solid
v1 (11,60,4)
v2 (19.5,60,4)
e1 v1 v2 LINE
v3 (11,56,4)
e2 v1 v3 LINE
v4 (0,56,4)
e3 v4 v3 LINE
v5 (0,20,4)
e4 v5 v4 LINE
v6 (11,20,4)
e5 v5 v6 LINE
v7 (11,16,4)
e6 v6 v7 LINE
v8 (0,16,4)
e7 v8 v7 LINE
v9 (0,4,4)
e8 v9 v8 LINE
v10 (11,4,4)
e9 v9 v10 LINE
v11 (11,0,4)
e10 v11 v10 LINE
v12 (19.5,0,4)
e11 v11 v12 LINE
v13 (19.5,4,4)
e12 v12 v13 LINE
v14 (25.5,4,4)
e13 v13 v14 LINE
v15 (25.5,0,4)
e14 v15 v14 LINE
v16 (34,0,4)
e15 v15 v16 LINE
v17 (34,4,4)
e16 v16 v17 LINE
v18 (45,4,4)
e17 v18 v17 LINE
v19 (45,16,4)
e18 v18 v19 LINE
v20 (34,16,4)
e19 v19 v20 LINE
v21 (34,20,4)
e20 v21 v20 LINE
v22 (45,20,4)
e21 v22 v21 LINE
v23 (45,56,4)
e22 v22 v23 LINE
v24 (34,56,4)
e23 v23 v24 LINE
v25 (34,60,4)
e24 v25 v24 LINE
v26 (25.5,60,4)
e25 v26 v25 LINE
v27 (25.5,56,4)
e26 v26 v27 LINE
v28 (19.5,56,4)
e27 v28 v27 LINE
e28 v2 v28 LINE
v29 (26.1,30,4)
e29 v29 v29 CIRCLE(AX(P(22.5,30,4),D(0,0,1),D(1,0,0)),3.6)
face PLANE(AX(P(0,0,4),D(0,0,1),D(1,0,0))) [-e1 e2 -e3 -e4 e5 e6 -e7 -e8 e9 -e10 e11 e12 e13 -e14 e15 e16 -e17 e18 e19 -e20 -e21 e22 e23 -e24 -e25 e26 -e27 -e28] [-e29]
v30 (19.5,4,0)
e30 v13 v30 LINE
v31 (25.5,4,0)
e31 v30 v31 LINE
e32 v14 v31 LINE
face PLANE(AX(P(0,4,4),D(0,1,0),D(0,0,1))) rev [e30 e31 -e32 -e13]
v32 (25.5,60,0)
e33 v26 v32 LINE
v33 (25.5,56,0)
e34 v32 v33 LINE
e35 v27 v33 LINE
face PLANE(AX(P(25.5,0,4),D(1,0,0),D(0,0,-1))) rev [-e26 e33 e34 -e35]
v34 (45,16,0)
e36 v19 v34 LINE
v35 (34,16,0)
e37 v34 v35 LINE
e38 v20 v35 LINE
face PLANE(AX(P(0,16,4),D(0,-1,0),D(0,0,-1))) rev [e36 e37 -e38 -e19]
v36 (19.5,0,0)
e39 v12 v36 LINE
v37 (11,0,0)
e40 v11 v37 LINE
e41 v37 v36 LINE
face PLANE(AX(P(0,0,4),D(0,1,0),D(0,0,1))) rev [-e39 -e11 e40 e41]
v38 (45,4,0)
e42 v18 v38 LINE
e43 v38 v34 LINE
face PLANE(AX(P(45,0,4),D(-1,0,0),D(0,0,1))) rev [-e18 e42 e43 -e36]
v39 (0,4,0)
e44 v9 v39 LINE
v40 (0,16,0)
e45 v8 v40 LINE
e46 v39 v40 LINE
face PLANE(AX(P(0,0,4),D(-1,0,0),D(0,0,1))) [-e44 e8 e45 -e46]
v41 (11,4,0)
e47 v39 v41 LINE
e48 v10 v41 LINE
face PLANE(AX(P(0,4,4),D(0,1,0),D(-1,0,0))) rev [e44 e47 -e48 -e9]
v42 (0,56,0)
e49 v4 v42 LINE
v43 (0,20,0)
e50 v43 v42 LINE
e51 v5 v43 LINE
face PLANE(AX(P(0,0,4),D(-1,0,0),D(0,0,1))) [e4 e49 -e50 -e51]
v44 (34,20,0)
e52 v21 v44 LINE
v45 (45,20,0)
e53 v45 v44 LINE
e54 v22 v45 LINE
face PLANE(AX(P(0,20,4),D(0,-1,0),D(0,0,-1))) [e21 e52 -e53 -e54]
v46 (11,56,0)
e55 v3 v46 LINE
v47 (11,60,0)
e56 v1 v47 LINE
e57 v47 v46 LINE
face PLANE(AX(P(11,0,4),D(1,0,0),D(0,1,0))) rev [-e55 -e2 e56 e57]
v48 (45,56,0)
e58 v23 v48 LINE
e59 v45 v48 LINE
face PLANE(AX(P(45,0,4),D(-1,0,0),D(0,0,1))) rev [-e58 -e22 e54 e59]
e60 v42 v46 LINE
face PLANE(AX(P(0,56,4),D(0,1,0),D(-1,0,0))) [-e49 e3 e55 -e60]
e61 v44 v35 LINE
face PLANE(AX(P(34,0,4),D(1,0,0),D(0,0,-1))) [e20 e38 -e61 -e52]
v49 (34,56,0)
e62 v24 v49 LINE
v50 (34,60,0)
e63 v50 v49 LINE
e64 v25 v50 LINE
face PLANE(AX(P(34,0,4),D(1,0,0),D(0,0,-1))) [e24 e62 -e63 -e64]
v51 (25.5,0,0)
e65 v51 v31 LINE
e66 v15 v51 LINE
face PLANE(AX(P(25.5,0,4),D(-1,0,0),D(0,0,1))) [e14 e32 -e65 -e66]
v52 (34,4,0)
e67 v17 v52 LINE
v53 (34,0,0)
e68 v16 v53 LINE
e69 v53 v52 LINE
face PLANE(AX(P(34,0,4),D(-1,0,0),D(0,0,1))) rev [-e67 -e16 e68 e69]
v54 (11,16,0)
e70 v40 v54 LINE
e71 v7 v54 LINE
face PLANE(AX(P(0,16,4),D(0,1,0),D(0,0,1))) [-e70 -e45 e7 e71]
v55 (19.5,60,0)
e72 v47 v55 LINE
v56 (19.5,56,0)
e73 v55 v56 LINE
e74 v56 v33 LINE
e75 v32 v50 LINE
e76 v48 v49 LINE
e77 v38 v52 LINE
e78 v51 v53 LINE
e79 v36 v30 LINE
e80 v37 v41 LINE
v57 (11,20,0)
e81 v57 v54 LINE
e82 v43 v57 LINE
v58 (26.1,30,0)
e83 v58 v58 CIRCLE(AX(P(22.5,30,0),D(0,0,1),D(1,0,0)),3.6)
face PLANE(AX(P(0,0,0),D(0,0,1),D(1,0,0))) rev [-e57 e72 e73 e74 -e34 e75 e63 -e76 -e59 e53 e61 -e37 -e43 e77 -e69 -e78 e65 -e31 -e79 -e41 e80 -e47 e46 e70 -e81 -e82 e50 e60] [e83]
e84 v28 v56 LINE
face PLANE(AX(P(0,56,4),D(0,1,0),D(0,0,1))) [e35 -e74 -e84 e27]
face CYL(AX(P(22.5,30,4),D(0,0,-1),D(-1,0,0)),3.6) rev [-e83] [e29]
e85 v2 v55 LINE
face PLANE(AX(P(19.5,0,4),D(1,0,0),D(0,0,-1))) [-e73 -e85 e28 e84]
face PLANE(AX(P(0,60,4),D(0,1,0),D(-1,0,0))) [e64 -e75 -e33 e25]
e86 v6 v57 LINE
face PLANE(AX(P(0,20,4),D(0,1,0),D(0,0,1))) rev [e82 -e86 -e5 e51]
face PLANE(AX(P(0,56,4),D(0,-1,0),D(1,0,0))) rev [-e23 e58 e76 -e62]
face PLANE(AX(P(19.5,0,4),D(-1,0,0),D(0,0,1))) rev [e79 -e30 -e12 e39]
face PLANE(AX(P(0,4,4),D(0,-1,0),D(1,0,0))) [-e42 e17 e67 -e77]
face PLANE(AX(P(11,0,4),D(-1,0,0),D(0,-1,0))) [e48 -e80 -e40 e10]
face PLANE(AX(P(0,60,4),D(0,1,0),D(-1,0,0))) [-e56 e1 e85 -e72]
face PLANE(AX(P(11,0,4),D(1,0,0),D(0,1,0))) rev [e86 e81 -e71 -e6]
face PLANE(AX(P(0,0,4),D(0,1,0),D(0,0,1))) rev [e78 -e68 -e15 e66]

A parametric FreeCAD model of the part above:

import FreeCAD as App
import Part
import Sketcher
from FreeCAD import Vector


def add_polygon(sketch, points):
    """Adds a closed chain of lines whose ends are joined by coincident constraints."""
    first, n = sketch.GeometryCount, len(points)
    for a, b in zip(points, points[1:] + points[:1]):
        sketch.addGeometry(Part.LineSegment(App.Vector(*a, 0), App.Vector(*b, 0)), False)
    for i in range(n):
        sketch.addConstraint(Sketcher.Constraint("Coincident", first + i, 2, first + (i + 1) % n, 1))

doc = App.newDocument("Part")
body = doc.addObject("PartDesign::Body", "Body")

# Sketch on XY plane
sketch1 = doc.addObject("Sketcher::SketchObject", "Sketch")
body.addObject(sketch1)
sketch1.AttachmentSupport = (doc.XY_Plane, [""])
sketch1.MapMode = "FlatFace"
add_polygon(sketch1, [(11, 4), (11, 0), (19.5, 0), (19.5, 4), (25.5, 4), (25.5, 0), (34, 0), (34, 4), (45, 4), (45, 16), (34, 16), (34, 20), (45, 20), (45, 56), (34, 56), (34, 60), (25.5, 60), (25.5, 56), (19.5, 56), (19.5, 60), (11, 60), (11, 56), (0, 56), (0, 20), (11, 20), (11, 16), (0, 16), (0, 4)])  # lines 0-27
sketch1.addGeometry(Part.Circle(Vector(22.5, 30, 0), Vector(0, 0, 1), 3.6), False)  # 28
sketch1.addConstraint([
    Sketcher.Constraint("Vertical", 0),
    Sketcher.Constraint("Horizontal", 1),
    Sketcher.Constraint("Vertical", 2),
    Sketcher.Constraint("Horizontal", 3),
    Sketcher.Constraint("Vertical", 4),
    Sketcher.Constraint("Horizontal", 5),
    Sketcher.Constraint("Vertical", 6),
    Sketcher.Constraint("Horizontal", 7),
    Sketcher.Constraint("Vertical", 8),
    Sketcher.Constraint("Horizontal", 9),
    Sketcher.Constraint("Vertical", 10),
    Sketcher.Constraint("Horizontal", 11),
    Sketcher.Constraint("Vertical", 12),
    Sketcher.Constraint("Horizontal", 13),
    Sketcher.Constraint("Vertical", 14),
    Sketcher.Constraint("Horizontal", 15),
    Sketcher.Constraint("Vertical", 16),
    Sketcher.Constraint("Horizontal", 17),
    Sketcher.Constraint("Vertical", 18),
    Sketcher.Constraint("Horizontal", 19),
    Sketcher.Constraint("Vertical", 20),
    Sketcher.Constraint("Horizontal", 21),
    Sketcher.Constraint("Vertical", 22),
    Sketcher.Constraint("Horizontal", 23),
    Sketcher.Constraint("Vertical", 24),
    Sketcher.Constraint("Horizontal", 25),
    Sketcher.Constraint("Vertical", 26),
    Sketcher.Constraint("Horizontal", 27),
    Sketcher.Constraint("PointOnObject", 0, 2, -1),
    Sketcher.Constraint("PointOnObject", 4, 2, -1),
    Sketcher.Constraint("PointOnObject", 21, 2, -2),
    Sketcher.Constraint("PointOnObject", 25, 2, -2),
    Sketcher.Constraint("Horizontal", 3, 2, 6, 2),
    Sketcher.Constraint("Horizontal", 13, 2, 16, 2),
    Sketcher.Constraint("Horizontal", 15, 2, 18, 2),
    Sketcher.Constraint("Horizontal", 17, 2, 20, 2),
    Sketcher.Constraint("Horizontal", 11, 2, 22, 2),
    Sketcher.Constraint("Horizontal", 9, 2, 24, 2),
    Sketcher.Constraint("Horizontal", 7, 2, 26, 2),
    Sketcher.Constraint("Vertical", 6, 2, 9, 2),
    Sketcher.Constraint("Vertical", 8, 2, 11, 2),
    Sketcher.Constraint("Vertical", 10, 2, 13, 2),
    Sketcher.Constraint("Vertical", 4, 2, 15, 2),
    Sketcher.Constraint("Vertical", 2, 2, 17, 2),
    Sketcher.Constraint("Vertical", 0, 2, 19, 2),
    Sketcher.Constraint("Vertical", 20, 2, 23, 2),
    Sketcher.Constraint("Equal", 1, 5),
    Sketcher.Constraint("Equal", 13, 21),
    Sketcher.Constraint("Equal", 6, 10),
    Sketcher.Constraint("Equal", 10, 14),
    Sketcher.Constraint("Diameter", 28, 7.2),
    Sketcher.Constraint("DistanceX", 3, 1, 3, 2, 6.0),
    Sketcher.Constraint("DistanceX", 7, 1, 7, 2, 11.0),
    Sketcher.Constraint("DistanceY", 0, 2, 0, 1, 4.0),
    Sketcher.Constraint("DistanceY", 8, 1, 8, 2, 12.0),
    Sketcher.Constraint("DistanceY", 12, 1, 12, 2, 36.0),
    Sketcher.Constraint("DistanceX", 1, 1, 1, 2, 8.5),
    Sketcher.Constraint("DistanceY", -1, 1, 28, 3, 30.0),
    Sketcher.Constraint("DistanceX", 1, 2, 28, 3, 3.0),
])
pad1 = doc.addObject("PartDesign::Pad", "Pad")
body.addObject(pad1)
pad1.Profile = sketch1
pad1.Length = 4

doc.recompute()
